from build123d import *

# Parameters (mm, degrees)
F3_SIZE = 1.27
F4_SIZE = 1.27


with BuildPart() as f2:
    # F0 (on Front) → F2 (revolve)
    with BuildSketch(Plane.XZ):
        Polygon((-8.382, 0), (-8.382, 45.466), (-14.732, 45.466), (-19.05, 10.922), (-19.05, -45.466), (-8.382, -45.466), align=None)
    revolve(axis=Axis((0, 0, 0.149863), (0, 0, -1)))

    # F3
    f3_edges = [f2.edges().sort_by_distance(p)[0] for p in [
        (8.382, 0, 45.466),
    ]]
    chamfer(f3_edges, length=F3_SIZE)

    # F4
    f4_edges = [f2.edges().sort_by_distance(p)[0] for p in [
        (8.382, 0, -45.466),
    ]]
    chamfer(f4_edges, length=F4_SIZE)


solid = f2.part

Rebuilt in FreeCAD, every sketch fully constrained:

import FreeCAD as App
import Part
import Sketcher
from FreeCAD import Vector
Q = App.Units.Quantity


def edges_at(feature, points):
    """Names of the edges that pass closest to the given points."""
    edges = feature.Shape.Edges
    near = lambda p: min(range(len(edges)), key=lambda i: edges[i].distToShape(Part.Vertex(*p))[0])
    return sorted({f"Edge{near(p) + 1}" for p in points})


def add_polygon(sketch, points):
    """Adds a closed chain of lines whose ends are joined by coincident constraints."""
    first, n = sketch.GeometryCount, len(points)
    for a, b in zip(points, points[1:] + points[:1]):
        sketch.addGeometry(Part.LineSegment(App.Vector(*a, 0), App.Vector(*b, 0)), False)
    for i in range(n):
        sketch.addConstraint(Sketcher.Constraint("Coincident", first + i, 2, first + (i + 1) % n, 1))

doc = App.newDocument("Part")
body = doc.addObject("PartDesign::Body", "Body")

# Sketch on XZ plane
sketch1 = doc.addObject("Sketcher::SketchObject", "Sketch")
body.addObject(sketch1)
sketch1.AttachmentSupport = (doc.XZ_Plane, [""])
sketch1.MapMode = "FlatFace"
add_polygon(sketch1, [(-8, 45), (-15, 45), (-19, 11), (-19, -45), (-8, -45)])  # lines 0-4
sketch1.addConstraint(Sketcher.Constraint("Horizontal", 0))
sketch1.addConstraint(Sketcher.Constraint("Vertical", 2))
sketch1.addConstraint(Sketcher.Constraint("Horizontal", 3))
sketch1.addConstraint(Sketcher.Constraint("Vertical", 4))
sketch1.addConstraint(Sketcher.Constraint("DistanceX", 0, 2, 0, 1, Q("0.25 in")))
sketch1.addConstraint(Sketcher.Constraint("DistanceX", 3, 1, 3, 2, Q("0.42 in")))
sketch1.addConstraint(Sketcher.Constraint("DistanceY", 2, 2, 2, 1, Q("2.22 in")))
sketch1.addConstraint(Sketcher.Constraint("DistanceY", 4, 1, 4, 2, Q("3.58 in")))
sketch1.addConstraint(Sketcher.Constraint("DistanceX", 0, 2, -1, 1, Q("0.58 in")))
sketch1.addConstraint(Sketcher.Constraint("DistanceY", -1, 1, 0, 2, Q("1.79 in")))
revolution = doc.addObject("PartDesign::Revolution", "Revolution")
body.addObject(revolution)
revolution.Profile = sketch1
revolution.ReferenceAxis = (sketch1, ["V_Axis"])
revolution.Angle = 360
doc.recompute()

chamfer = doc.addObject("PartDesign::Chamfer", "Chamfer")
body.addObject(chamfer)
chamfer.Base = (revolution, edges_at(revolution, [(8.382, 0, 45.466)]))
chamfer.Size = Q("0.05 in")
doc.recompute()

chamfer2 = doc.addObject("PartDesign::Chamfer", "Chamfer001")
body.addObject(chamfer2)
chamfer2.Base = (chamfer, edges_at(chamfer, [(8.382, 0, -45.466)]))
chamfer2.Size = Q("0.05 in")

doc.recompute()
